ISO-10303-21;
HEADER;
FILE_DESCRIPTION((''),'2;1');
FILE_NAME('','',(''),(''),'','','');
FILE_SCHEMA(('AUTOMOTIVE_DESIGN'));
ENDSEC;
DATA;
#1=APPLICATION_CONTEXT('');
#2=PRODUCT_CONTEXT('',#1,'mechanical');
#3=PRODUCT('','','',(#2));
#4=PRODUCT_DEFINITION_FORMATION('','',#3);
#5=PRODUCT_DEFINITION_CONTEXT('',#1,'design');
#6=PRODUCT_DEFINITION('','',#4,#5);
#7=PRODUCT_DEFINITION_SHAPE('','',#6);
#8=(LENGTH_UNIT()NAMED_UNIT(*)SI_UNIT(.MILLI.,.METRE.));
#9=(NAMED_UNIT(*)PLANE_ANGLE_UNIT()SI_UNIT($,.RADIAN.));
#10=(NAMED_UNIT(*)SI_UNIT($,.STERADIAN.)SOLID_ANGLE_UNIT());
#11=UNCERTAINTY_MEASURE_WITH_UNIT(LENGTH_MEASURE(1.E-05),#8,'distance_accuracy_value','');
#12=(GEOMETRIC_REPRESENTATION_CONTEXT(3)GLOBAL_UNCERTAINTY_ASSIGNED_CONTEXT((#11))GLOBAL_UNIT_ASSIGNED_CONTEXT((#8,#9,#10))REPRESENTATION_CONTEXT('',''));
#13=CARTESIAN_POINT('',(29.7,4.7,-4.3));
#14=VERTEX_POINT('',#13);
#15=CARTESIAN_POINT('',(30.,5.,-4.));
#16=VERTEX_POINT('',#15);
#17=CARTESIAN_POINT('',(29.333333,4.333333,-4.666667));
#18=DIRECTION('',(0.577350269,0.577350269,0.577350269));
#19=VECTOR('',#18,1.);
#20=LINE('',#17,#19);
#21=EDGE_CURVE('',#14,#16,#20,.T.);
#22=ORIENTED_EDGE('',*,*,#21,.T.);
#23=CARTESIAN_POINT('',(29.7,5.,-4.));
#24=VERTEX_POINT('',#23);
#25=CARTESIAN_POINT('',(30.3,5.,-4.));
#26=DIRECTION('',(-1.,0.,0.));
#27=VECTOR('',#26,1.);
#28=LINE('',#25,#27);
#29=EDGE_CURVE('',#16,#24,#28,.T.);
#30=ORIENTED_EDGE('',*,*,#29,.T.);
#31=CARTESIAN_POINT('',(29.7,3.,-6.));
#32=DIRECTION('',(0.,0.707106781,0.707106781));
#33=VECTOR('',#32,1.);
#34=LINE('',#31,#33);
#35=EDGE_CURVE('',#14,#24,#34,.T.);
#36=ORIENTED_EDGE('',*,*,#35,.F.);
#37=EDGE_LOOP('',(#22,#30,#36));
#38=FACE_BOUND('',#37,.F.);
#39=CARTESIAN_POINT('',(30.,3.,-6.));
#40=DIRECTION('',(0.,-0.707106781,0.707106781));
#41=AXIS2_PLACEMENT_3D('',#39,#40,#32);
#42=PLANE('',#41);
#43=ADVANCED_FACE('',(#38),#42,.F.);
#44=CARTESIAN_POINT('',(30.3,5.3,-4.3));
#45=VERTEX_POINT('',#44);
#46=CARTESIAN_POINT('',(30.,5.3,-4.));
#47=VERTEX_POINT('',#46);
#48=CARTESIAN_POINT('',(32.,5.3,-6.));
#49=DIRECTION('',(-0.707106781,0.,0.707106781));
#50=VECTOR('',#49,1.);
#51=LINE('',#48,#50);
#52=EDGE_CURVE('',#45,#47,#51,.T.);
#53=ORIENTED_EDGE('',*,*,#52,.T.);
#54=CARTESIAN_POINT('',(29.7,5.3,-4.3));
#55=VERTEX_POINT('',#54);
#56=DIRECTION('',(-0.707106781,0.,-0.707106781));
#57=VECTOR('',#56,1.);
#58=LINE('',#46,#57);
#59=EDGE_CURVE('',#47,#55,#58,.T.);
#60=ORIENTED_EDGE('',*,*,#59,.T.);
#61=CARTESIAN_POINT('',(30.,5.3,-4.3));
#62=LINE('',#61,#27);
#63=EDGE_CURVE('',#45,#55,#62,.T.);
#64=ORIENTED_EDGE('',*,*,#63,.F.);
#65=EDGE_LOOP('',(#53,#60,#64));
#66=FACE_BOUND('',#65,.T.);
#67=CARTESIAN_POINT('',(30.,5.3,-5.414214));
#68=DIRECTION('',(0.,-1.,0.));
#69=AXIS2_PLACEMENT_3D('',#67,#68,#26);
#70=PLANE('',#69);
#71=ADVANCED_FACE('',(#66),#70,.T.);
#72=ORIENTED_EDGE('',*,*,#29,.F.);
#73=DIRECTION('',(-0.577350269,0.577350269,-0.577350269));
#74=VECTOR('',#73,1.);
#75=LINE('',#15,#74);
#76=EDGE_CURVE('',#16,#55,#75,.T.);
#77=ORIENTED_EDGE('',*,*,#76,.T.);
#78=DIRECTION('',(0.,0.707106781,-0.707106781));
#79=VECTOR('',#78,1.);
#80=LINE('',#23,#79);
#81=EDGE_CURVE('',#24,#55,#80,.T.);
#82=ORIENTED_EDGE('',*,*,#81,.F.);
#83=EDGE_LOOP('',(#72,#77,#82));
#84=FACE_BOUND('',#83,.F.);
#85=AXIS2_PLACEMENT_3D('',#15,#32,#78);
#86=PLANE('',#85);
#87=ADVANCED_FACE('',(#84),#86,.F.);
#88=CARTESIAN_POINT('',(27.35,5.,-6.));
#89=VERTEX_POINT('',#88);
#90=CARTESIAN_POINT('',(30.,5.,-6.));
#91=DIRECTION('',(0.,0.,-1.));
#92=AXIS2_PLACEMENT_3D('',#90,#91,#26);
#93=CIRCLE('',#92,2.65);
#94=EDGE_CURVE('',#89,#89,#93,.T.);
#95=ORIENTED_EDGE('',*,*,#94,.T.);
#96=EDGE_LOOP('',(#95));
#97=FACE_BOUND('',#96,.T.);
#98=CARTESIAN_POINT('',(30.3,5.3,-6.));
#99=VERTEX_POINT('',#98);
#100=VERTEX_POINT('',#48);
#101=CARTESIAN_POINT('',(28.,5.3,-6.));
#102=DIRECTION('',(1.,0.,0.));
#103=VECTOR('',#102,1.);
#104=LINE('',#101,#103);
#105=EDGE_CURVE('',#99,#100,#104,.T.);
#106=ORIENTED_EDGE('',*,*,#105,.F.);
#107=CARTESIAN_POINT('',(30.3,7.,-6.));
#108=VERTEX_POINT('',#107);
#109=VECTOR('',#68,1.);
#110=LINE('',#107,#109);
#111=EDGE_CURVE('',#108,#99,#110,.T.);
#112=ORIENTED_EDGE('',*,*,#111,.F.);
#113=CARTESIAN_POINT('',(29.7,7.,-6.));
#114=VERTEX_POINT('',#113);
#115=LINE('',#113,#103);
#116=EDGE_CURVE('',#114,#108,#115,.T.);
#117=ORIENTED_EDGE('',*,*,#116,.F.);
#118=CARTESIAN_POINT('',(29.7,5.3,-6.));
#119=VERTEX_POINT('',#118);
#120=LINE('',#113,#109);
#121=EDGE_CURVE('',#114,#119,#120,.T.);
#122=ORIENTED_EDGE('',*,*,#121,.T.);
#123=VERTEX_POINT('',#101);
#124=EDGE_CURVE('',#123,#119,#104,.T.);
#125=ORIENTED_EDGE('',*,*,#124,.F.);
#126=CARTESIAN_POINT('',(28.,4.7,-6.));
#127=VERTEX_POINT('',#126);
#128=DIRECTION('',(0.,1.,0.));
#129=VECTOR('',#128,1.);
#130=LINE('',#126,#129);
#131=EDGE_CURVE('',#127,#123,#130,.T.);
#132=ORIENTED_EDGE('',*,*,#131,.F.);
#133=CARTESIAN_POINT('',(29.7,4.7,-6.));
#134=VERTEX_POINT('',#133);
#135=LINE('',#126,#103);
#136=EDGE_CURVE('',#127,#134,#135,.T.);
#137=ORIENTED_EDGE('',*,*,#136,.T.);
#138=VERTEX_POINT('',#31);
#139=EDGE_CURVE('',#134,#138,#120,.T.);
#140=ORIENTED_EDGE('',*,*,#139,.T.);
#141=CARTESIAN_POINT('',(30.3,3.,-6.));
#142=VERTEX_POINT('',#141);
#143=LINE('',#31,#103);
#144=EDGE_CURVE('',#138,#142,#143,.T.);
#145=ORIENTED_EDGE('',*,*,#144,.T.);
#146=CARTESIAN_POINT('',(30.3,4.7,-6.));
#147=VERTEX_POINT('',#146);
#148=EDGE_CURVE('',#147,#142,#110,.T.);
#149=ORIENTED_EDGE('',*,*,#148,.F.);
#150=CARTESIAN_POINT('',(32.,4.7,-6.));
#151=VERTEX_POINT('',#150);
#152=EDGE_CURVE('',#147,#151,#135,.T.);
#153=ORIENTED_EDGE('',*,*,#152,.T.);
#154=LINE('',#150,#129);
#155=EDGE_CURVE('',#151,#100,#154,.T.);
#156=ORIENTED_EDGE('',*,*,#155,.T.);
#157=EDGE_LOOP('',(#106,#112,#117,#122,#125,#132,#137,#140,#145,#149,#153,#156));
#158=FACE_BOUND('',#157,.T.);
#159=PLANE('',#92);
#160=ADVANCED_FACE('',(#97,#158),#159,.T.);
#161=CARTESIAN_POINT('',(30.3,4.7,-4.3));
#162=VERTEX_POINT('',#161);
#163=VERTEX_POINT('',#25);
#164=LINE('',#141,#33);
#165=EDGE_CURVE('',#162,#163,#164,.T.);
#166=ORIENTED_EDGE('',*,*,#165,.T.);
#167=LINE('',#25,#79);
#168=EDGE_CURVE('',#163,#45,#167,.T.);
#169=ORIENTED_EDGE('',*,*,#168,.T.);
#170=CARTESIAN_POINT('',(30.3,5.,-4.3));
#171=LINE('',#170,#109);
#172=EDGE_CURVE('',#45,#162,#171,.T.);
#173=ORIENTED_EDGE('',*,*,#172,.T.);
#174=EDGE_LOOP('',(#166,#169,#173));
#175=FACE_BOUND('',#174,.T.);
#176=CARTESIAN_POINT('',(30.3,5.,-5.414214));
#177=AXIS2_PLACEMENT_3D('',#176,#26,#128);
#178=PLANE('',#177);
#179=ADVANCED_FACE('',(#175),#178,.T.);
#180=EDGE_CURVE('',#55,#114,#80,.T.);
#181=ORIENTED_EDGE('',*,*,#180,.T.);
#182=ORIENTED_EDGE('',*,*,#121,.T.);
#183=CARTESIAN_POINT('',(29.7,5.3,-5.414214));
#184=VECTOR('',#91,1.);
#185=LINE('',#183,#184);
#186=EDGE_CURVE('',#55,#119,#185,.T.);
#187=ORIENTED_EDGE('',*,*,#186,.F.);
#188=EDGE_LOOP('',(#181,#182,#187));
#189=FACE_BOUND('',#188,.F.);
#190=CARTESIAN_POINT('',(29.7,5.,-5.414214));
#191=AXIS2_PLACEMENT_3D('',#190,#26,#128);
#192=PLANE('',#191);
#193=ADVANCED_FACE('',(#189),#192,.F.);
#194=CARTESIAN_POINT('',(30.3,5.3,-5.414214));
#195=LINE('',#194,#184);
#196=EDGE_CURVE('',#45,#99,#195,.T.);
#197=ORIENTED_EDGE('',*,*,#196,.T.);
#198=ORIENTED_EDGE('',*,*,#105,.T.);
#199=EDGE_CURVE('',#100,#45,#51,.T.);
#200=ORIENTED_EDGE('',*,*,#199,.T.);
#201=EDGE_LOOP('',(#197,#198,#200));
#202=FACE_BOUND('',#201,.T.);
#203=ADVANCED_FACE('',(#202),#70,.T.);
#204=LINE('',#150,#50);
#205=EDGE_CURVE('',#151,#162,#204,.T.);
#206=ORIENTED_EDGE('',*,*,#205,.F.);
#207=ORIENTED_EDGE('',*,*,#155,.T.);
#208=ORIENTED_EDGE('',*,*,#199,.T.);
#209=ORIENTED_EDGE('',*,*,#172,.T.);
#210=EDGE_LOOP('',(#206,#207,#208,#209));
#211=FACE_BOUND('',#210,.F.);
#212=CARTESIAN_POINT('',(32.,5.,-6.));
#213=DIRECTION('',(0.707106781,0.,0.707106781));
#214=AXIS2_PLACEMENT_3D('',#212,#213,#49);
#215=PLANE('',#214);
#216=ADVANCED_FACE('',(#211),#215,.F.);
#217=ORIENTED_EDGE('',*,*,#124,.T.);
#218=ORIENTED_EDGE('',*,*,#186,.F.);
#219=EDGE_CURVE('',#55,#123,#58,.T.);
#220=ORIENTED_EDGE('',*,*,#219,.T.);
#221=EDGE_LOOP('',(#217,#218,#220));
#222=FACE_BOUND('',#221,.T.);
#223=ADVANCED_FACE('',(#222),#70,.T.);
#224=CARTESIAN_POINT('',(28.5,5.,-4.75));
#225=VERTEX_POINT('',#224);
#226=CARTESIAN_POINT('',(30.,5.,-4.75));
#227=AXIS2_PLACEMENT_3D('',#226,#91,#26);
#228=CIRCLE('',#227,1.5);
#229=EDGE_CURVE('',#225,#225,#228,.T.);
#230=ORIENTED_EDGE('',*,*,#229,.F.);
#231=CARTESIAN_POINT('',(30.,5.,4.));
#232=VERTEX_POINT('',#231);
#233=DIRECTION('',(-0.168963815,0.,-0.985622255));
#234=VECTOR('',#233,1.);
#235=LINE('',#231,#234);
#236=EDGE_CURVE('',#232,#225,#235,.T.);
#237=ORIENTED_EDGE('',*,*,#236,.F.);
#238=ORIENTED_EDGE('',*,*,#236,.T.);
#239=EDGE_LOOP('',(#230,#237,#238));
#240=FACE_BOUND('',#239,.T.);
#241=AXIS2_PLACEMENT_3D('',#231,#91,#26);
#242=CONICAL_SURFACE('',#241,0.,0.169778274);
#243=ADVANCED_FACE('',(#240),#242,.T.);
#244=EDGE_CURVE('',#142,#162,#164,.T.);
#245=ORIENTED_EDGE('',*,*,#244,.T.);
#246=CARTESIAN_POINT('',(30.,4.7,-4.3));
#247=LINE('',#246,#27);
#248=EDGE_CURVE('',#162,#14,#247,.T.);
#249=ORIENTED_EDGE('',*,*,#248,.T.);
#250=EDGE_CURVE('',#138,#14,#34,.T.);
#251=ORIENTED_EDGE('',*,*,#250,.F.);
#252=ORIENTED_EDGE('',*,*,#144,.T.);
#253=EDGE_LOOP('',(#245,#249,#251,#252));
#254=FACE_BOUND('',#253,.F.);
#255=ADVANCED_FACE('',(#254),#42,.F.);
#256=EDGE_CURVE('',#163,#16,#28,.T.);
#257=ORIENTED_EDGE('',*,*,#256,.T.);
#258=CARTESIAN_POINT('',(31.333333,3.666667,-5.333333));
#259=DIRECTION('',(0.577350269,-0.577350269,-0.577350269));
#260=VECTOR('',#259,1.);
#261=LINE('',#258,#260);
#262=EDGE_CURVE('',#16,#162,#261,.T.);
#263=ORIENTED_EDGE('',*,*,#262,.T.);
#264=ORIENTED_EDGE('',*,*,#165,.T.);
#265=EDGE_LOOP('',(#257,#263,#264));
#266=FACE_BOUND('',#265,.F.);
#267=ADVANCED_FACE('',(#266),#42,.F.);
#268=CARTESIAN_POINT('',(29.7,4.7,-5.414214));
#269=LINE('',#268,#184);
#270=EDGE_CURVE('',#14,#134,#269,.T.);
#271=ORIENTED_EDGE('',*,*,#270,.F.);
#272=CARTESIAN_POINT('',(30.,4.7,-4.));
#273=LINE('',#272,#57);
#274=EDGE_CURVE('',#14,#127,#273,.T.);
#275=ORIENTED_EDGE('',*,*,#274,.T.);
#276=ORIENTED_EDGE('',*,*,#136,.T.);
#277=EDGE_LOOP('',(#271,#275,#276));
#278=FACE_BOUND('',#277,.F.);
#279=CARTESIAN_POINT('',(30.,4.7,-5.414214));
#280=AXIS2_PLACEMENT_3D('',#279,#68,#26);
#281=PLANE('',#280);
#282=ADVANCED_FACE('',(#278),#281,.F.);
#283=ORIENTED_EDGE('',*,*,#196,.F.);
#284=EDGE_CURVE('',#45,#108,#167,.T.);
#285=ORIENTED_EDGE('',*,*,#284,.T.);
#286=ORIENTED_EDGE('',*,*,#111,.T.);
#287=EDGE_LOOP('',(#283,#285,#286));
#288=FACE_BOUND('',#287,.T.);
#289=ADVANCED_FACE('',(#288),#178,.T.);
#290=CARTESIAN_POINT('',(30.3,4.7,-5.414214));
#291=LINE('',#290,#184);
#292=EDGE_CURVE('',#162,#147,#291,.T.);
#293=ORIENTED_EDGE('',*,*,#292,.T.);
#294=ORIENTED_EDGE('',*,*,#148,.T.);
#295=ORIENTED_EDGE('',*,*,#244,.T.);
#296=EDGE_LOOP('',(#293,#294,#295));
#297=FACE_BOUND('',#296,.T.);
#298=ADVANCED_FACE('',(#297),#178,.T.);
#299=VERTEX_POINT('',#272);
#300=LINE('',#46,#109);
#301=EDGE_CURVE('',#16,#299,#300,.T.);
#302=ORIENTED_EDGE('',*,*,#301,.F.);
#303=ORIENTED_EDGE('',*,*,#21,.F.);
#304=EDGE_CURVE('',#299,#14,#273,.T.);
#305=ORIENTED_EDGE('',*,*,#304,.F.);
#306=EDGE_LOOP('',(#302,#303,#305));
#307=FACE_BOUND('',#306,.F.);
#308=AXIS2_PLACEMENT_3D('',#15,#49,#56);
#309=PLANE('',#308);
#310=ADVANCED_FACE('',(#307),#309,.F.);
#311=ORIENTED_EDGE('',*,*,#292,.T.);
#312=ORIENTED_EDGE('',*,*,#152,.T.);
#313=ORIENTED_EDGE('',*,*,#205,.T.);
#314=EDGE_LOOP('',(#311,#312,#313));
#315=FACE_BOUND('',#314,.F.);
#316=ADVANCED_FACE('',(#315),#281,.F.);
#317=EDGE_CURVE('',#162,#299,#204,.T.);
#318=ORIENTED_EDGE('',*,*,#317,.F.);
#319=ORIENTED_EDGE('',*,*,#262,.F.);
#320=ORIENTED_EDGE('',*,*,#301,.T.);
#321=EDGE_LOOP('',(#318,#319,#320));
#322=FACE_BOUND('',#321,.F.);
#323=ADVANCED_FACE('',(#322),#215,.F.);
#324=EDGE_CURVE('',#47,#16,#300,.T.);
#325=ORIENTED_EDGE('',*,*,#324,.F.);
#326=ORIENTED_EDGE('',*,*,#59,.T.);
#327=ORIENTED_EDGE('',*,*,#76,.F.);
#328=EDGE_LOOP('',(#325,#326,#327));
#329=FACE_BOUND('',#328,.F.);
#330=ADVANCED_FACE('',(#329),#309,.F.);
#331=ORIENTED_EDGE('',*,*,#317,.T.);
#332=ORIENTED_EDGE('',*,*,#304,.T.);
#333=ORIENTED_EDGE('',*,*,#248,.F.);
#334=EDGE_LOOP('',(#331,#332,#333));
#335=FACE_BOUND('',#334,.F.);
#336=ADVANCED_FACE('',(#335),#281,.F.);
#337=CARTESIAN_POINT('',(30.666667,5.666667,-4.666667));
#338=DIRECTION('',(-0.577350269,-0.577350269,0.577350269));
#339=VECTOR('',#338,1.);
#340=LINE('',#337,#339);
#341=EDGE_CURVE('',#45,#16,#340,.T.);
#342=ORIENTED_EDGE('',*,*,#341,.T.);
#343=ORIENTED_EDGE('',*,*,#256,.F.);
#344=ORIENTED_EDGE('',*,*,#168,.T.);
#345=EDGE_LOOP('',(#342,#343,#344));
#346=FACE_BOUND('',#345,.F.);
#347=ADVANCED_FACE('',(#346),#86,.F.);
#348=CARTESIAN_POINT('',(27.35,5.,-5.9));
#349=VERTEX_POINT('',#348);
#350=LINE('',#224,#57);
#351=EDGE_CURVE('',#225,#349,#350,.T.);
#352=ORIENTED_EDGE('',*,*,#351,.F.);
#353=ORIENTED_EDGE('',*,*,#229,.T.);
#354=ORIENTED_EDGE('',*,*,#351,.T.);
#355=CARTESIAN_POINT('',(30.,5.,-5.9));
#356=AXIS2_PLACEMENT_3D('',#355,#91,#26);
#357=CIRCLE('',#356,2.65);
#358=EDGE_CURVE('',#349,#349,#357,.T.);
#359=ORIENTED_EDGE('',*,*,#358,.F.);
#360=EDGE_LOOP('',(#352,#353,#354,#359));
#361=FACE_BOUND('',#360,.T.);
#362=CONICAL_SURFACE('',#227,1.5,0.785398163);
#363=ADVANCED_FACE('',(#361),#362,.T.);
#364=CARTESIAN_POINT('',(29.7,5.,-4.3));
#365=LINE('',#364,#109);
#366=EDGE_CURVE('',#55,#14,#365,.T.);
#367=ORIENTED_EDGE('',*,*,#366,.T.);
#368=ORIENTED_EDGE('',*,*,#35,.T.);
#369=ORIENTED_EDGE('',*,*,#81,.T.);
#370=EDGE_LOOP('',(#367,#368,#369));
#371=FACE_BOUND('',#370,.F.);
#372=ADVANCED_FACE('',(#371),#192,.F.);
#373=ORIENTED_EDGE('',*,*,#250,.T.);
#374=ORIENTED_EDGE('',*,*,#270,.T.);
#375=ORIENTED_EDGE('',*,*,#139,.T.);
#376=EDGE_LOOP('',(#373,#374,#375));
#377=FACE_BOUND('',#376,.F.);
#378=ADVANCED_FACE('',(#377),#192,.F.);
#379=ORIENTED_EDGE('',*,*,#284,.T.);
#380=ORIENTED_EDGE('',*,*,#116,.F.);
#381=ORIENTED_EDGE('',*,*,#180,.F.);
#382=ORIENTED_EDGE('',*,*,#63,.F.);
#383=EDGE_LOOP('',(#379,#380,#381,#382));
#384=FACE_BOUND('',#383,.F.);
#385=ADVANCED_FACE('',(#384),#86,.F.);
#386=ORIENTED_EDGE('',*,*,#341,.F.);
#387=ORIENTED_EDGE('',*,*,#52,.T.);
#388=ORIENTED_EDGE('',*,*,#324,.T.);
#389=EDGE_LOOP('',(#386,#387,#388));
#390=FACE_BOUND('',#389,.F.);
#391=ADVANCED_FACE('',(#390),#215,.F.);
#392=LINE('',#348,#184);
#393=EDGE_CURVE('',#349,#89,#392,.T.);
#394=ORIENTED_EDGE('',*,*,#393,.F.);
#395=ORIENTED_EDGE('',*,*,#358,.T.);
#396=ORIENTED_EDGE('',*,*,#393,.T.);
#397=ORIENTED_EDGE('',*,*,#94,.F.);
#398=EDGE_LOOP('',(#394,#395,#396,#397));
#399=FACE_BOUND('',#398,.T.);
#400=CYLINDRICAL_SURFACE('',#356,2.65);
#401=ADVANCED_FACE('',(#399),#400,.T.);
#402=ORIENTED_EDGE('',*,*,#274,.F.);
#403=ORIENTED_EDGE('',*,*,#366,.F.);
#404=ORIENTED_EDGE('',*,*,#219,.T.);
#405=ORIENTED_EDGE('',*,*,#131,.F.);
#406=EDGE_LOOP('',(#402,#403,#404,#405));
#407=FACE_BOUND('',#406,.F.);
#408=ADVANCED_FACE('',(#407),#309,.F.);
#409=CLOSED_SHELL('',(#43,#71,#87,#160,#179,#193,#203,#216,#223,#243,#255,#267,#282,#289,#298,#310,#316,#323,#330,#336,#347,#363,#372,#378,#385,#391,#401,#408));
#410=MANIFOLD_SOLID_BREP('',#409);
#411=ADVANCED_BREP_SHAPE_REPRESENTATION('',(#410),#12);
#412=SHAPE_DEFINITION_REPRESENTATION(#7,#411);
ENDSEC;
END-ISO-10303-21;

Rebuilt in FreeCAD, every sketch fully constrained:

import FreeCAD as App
import Part
import Sketcher
Q = App.Units.Quantity


def add_polygon(sketch, points):
    """Adds a closed chain of lines whose ends are joined by coincident constraints."""
    first, n = sketch.GeometryCount, len(points)
    for a, b in zip(points, points[1:] + points[:1]):
        sketch.addGeometry(Part.LineSegment(App.Vector(*a, 0), App.Vector(*b, 0)), False)
    for i in range(n):
        sketch.addConstraint(Sketcher.Constraint("Coincident", first + i, 2, first + (i + 1) % n, 1))

doc = App.newDocument("Part")
params = doc.addObject("Spreadsheet::Sheet", "Params")
for row, (alias, value) in enumerate([
    ("sketch1_height", "10 mm"),
    ("sketch1_height2", "0.1 mm"),
    ("sketch1_width", "2.65 mm"),
    ("revolution_angle", "360 deg"),
    ("sketch2_width", "4 mm"),
    ("pocket1_length", "0.6 mm"),
], start=1):
    params.set(f"A{row}", alias)
    params.set(f"B{row}", "=" + value)
    params.setAlias(f"B{row}", alias)

body = doc.addObject("PartDesign::Body", "Body")

# Sketch on XZ plane
sketch1 = body.newObject("Sketcher::SketchObject", "Sketch")
sketch1.AttachmentSupport = (doc.getObject("XZ_Plane"), [""])
sketch1.MapMode = "FlatFace"
add_polygon(sketch1, [(0, 0), (0, -10), (1.5, -1.25), (2.65, -0.1), (2.65, 0)])  # lines 0-4
sketch1.addConstraint([
    Sketcher.Constraint("Vertical", 0),
    Sketcher.Constraint("Vertical", 3),
    Sketcher.Constraint("Horizontal", 4),
    Sketcher.Constraint("Coincident", 4, 2, -1, 1),
    Sketcher.Constraint("DistanceY", 0, 2, 0, 1, 10.0),
    Sketcher.Constraint("Angle", 2, Q("45 deg")),
    Sketcher.Constraint("DistanceY", 3, 1, 3, 2, 0.1),
    Sketcher.Constraint("DistanceX", 4, 2, 4, 1, 2.65),
    Sketcher.Constraint("DistanceX", -1, 1, 1, 2, 1.5),
])
sketch1.setExpression("Constraints[9]", "Params.sketch1_height")
sketch1.setExpression("Constraints[11]", "Params.sketch1_height2")
sketch1.setExpression("Constraints[12]", "Params.sketch1_width")
revolution = body.newObject("PartDesign::Revolution", "Revolution")
revolution.Profile = sketch1
revolution.ReferenceAxis = (sketch1, ["V_Axis"])
revolution.setExpression("Angle", "Params.revolution_angle")

# Sketch on XZ plane
sketch2 = body.newObject("Sketcher::SketchObject", "Sketch001")
sketch2.AttachmentSupport = (doc.getObject("XZ_Plane"), [""])
sketch2.MapMode = "FlatFace"
add_polygon(sketch2, [(-2, 0), (0, -2), (2, 0)])  # lines 0-2
sketch2.addConstraint([
    Sketcher.Constraint("Horizontal", 2),
    Sketcher.Constraint("Symmetric", 1, 2, 2, 2, -1, 1),
    Sketcher.Constraint("PointOnObject", 0, 2, -2),
    Sketcher.Constraint("Perpendicular", 0, 1),
    Sketcher.Constraint("DistanceX", 2, 2, 2, 1, 4.0),
])
sketch2.setExpression("Constraints[7]", "Params.sketch2_width")
pocket1 = body.newObject("PartDesign::Pocket", "Pocket")
pocket1.Profile = sketch2
pocket1.setExpression("Length", "Params.pocket1_length")
pocket1.Midplane = True
doc.recompute()

polarpattern = body.newObject("PartDesign::PolarPattern", "PolarPattern")
polarpattern.Originals = [pocket1]
polarpattern.Axis = (doc.getObject("Z_Axis"), [""])
polarpattern.Angle = 90
polarpattern.Occurrences = 2
body.Tip = polarpattern
body2 = doc.addObject("PartDesign::Body", "Body001")
doc.recompute()

body.Placement = App.Placement(App.Vector(30, 5, -6), App.Rotation(App.Vector(0, 1, 0), 180))
boolean = body2.newObject("PartDesign::Boolean", "Boolean")
boolean.Type = "Fuse"
boolean.addObjects([body])

doc.recompute()
